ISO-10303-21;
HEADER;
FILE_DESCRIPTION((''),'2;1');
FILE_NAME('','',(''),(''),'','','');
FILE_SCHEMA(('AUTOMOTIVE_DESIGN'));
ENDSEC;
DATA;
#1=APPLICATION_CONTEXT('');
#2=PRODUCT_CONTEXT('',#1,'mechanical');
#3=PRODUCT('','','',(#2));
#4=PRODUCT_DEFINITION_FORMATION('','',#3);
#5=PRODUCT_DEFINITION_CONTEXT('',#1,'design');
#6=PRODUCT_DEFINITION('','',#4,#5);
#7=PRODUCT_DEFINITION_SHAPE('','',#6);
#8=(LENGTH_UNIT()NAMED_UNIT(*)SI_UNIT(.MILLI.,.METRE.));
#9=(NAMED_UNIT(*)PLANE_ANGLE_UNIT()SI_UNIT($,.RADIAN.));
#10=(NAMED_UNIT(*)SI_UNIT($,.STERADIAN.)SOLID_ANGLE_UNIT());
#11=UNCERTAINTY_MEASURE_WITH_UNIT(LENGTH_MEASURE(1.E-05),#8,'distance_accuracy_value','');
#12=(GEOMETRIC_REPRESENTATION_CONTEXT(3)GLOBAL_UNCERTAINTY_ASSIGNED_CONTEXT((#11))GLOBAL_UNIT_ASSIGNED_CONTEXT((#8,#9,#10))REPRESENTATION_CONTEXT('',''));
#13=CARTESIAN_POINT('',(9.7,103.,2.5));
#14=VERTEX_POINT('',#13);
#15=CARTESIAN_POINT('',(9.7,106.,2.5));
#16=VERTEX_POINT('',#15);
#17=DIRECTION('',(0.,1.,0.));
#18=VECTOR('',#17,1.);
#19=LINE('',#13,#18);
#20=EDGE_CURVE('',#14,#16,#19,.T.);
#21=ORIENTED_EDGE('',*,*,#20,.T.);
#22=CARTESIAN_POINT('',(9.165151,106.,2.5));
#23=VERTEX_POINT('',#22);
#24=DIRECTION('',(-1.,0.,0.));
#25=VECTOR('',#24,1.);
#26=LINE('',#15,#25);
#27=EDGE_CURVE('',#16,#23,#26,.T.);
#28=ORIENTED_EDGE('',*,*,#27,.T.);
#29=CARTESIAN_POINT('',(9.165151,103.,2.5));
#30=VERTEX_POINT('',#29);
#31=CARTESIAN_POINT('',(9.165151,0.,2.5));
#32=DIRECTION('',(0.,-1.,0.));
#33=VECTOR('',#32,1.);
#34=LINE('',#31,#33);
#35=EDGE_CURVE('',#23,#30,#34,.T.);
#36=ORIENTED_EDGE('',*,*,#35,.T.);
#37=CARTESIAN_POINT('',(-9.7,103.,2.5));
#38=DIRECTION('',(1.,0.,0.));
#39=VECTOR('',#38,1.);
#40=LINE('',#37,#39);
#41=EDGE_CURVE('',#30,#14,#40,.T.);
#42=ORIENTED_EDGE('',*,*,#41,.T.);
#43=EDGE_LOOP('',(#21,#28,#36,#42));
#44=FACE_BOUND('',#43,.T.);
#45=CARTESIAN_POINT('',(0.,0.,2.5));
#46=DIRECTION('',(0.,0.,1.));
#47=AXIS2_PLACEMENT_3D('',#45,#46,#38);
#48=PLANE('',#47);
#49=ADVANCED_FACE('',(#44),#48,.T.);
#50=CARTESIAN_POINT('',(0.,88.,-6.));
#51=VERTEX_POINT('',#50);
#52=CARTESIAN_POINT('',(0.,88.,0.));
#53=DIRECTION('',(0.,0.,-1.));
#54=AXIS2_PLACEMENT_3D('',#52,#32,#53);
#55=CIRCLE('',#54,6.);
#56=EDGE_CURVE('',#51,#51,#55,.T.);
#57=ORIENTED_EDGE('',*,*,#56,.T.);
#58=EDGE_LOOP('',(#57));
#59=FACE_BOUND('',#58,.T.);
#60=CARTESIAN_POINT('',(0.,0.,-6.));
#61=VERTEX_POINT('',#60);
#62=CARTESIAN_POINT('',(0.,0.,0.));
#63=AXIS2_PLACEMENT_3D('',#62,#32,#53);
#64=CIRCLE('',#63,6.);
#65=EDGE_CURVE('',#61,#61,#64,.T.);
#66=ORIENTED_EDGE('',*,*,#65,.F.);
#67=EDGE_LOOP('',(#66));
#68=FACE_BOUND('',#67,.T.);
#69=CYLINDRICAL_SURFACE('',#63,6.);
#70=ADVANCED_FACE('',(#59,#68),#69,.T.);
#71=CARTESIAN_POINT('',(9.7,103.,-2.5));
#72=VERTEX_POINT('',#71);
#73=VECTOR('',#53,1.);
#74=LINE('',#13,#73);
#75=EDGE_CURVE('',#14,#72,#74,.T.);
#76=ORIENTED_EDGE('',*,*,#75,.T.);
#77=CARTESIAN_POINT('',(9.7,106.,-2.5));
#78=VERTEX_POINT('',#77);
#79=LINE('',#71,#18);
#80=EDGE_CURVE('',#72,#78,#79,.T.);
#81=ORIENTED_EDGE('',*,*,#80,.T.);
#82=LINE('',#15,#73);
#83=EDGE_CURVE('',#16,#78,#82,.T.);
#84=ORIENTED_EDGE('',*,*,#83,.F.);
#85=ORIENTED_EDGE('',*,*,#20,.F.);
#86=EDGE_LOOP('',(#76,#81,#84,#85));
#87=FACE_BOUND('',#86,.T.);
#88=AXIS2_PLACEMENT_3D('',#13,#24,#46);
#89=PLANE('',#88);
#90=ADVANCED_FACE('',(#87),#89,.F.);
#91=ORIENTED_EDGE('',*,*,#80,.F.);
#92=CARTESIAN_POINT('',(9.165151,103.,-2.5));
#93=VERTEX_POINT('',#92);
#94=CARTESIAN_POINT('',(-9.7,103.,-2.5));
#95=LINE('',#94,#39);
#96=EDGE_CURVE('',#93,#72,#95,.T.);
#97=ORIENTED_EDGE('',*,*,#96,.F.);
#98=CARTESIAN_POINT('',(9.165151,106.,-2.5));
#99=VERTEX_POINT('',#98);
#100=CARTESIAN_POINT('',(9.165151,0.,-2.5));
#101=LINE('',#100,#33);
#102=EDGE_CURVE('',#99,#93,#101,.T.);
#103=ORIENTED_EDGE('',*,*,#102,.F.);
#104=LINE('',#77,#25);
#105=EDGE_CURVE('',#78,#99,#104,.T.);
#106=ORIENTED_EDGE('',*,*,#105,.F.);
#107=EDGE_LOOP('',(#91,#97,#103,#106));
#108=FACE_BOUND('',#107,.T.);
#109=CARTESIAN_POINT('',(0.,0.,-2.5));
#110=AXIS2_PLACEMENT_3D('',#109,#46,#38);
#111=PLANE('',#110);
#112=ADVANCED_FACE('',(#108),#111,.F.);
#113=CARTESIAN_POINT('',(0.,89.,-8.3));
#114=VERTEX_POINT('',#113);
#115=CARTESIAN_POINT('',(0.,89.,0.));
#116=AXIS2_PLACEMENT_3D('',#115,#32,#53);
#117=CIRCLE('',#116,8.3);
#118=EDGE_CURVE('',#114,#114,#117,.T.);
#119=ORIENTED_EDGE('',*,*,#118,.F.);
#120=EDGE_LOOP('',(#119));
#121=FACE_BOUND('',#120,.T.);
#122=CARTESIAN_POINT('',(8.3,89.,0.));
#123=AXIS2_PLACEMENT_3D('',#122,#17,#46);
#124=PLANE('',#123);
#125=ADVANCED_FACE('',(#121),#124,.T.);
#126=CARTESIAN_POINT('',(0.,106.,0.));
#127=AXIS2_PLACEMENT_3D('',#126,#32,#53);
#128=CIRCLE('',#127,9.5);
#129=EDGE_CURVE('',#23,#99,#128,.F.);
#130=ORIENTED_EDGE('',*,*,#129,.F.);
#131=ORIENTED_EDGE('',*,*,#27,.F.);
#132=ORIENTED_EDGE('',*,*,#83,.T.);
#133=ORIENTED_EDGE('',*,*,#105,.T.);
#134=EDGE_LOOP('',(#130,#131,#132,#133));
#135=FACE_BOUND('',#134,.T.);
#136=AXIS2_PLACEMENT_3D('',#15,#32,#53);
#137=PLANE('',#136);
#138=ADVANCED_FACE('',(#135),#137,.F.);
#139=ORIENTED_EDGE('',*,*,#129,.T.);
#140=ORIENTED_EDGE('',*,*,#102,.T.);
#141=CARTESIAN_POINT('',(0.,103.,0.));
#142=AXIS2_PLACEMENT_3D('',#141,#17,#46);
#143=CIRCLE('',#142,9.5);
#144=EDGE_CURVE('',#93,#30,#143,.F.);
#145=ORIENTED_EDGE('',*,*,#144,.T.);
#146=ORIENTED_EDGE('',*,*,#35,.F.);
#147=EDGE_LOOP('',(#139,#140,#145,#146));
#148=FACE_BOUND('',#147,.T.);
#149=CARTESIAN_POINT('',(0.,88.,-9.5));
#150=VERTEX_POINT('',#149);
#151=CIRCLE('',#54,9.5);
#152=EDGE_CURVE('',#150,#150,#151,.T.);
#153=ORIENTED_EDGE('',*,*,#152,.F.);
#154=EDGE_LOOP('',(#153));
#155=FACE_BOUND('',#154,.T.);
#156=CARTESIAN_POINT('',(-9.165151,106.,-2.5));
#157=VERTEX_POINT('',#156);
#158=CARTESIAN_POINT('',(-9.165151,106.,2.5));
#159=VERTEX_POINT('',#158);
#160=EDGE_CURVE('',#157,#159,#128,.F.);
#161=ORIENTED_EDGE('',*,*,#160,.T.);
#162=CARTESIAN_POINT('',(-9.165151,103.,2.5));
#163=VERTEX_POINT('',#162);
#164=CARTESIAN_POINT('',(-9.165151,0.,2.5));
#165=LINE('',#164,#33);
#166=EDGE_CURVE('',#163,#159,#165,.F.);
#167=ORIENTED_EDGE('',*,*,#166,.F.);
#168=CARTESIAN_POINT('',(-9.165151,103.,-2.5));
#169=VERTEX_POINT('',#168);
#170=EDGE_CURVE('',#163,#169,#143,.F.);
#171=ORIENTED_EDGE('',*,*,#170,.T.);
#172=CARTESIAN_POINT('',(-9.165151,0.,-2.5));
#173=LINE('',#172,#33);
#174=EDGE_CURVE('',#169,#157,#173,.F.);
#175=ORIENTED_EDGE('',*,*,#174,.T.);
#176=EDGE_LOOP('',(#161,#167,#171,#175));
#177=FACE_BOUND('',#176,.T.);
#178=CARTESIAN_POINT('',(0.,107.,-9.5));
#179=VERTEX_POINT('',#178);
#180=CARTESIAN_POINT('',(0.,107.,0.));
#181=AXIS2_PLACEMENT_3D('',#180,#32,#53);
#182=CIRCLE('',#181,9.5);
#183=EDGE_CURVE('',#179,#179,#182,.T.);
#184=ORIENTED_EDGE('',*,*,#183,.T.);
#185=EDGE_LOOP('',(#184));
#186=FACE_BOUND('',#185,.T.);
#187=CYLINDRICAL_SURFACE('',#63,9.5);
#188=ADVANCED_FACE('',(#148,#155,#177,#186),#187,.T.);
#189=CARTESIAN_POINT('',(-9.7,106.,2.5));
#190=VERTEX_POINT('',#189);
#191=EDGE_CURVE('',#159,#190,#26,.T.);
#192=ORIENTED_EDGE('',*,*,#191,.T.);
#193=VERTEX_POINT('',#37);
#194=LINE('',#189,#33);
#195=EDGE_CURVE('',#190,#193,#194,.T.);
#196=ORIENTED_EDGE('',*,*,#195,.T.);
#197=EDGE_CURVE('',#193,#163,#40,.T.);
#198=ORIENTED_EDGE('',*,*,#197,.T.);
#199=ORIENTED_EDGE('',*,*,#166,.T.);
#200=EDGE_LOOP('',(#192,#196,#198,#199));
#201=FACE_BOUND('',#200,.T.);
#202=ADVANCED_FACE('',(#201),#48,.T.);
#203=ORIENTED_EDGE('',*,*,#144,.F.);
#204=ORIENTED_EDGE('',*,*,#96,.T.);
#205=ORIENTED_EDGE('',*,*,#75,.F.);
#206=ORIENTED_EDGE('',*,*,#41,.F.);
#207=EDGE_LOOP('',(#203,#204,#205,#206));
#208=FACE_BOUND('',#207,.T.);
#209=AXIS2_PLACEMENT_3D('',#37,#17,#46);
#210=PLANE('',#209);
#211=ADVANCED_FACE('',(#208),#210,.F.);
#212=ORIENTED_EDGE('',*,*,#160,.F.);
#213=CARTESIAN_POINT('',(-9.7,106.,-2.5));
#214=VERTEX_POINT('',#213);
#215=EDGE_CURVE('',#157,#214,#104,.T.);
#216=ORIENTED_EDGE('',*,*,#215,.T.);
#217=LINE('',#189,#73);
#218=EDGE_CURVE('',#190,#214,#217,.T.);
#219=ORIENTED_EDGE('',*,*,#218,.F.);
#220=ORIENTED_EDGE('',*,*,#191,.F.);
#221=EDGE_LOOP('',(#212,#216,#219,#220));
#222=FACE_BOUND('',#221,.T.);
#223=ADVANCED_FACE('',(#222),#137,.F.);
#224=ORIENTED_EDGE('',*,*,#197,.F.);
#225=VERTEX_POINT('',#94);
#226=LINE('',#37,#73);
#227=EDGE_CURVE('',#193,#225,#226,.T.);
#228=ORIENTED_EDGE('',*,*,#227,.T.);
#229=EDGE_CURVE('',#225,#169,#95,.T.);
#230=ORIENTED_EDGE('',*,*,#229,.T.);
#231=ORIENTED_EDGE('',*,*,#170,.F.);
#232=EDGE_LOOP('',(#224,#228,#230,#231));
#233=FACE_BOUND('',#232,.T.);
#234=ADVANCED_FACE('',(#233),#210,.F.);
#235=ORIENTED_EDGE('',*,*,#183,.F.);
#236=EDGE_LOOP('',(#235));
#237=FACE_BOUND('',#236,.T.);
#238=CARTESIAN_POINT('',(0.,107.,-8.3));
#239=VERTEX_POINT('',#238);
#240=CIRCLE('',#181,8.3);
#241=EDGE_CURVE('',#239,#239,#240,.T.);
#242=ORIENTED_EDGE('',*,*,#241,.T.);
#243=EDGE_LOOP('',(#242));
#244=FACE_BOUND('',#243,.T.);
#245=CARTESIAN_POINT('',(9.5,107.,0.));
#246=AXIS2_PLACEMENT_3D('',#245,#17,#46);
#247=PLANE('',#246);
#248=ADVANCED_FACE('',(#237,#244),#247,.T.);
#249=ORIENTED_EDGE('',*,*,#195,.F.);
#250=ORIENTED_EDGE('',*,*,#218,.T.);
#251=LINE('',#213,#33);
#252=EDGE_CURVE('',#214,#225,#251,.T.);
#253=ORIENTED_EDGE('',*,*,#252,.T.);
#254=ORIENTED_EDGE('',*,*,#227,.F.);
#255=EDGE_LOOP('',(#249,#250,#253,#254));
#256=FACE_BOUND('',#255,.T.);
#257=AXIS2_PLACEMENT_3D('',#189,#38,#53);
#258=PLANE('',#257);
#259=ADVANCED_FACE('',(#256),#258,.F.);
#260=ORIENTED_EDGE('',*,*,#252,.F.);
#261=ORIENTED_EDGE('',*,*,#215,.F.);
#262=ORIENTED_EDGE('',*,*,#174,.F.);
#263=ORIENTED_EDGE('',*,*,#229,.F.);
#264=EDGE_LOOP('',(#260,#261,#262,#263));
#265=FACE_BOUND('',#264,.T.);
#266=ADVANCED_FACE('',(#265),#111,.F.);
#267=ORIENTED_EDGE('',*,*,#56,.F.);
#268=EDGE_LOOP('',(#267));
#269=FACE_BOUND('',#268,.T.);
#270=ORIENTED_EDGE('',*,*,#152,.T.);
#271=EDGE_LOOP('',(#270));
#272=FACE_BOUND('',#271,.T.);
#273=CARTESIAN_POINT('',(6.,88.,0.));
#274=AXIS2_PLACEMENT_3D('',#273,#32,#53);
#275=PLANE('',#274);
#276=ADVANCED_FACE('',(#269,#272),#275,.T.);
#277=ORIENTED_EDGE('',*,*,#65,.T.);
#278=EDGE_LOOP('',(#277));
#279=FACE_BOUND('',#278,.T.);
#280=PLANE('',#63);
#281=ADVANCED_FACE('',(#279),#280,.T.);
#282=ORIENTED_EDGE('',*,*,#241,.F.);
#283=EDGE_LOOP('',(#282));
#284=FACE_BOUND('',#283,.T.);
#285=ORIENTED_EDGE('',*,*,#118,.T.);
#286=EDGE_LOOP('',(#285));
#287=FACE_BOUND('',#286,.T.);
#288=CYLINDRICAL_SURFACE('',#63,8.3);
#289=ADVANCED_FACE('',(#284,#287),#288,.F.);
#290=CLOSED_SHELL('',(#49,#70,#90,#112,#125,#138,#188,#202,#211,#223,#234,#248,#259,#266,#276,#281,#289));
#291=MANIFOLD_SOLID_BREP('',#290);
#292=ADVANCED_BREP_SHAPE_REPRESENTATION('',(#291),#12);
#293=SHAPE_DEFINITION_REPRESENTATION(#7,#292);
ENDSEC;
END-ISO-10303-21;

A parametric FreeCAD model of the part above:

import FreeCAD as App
import Part
import Sketcher

V = App.Vector


def add_polygon(sketch, points):
    """Adds a closed chain of lines whose ends are joined by coincident constraints."""
    first, n = sketch.GeometryCount, len(points)
    for a, b in zip(points, points[1:] + points[:1]):
        sketch.addGeometry(Part.LineSegment(App.Vector(*a, 0), App.Vector(*b, 0)), False)
    for i in range(n):
        sketch.addConstraint(Sketcher.Constraint("Coincident", first + i, 2, first + (i + 1) % n, 1))

doc = App.newDocument("Part")
body = doc.addObject("PartDesign::Body", "Body")

# Sketch on XY plane
sketch1 = body.newObject("Sketcher::SketchObject", "Sketch")
sketch1.AttachmentSupport = (doc.getObject("XY_Plane"), [""])
sketch1.MapMode = "FlatFace"
add_polygon(sketch1, [(0, 0), (6, 0), (6, 88), (9.5, 88), (9.5, 107), (8.3, 107), (8.3, 89), (0, 89)])  # lines 0-7
sketch1.addConstraint([
    Sketcher.Constraint("Horizontal", 0),
    Sketcher.Constraint("Vertical", 1),
    Sketcher.Constraint("Horizontal", 2),
    Sketcher.Constraint("Vertical", 3),
    Sketcher.Constraint("Horizontal", 4),
    Sketcher.Constraint("Vertical", 5),
    Sketcher.Constraint("Horizontal", 6),
    Sketcher.Constraint("Vertical", 7),
    Sketcher.Constraint("Coincident", 7, 2, -1, 1),
    Sketcher.Constraint("DistanceX", 0, 1, 0, 2, 6.0),
    Sketcher.Constraint("DistanceY", 1, 1, 1, 2, 88.0),
    Sketcher.Constraint("DistanceY", 3, 1, 3, 2, 19.0),
    Sketcher.Constraint("DistanceY", 5, 2, 5, 1, 18.0),
    Sketcher.Constraint("DistanceX", 2, 1, 2, 2, 3.5),
    Sketcher.Constraint("DistanceX", 4, 2, 4, 1, 1.2),
])
revolution = body.newObject("PartDesign::Revolution", "Revolution")
revolution.Profile = sketch1
revolution.ReferenceAxis = (sketch1, ["V_Axis"])
revolution.Angle = 360

# Sketch on XY plane
sketch2 = body.newObject("Sketcher::SketchObject", "Sketch001")
sketch2.AttachmentSupport = (doc.getObject("XY_Plane"), [""])
sketch2.MapMode = "FlatFace"
sketch2.AttachmentOffset = App.Placement(V(0, 0, -2.5), App.Rotation())
add_polygon(sketch2, [(-9.7, 106), (-9.7, 103), (9.7, 103), (9.7, 106)])  # lines 0-3
sketch2.addConstraint([
    Sketcher.Constraint("Vertical", 0),
    Sketcher.Constraint("Horizontal", 1),
    Sketcher.Constraint("Vertical", 2),
    Sketcher.Constraint("Horizontal", 3),
    Sketcher.Constraint("DistanceY", 0, 2, 0, 1, 3.0),
    Sketcher.Constraint("DistanceX", 1, 1, 1, 2, 19.4),
    Sketcher.Constraint("DistanceY", -1, 1, 0, 2, 103.0),
    Sketcher.Constraint("DistanceX", 0, 2, -1, 1, 9.7),
])
pad1 = body.newObject("PartDesign::Pad", "Pad")
pad1.Profile = sketch2
pad1.Length = 5

# Sketch on XZ plane
sketch3 = body.newObject("Sketcher::SketchObject", "Sketch002")
sketch3.AttachmentSupport = (doc.getObject("XZ_Plane"), [""])
sketch3.MapMode = "FlatFace"
sketch3.AttachmentOffset = App.Placement(V(0, 0, -89), App.Rotation())
sketch3.addGeometry(Part.Circle(V(0, 0, 0), V(0, 0, 1), 8), False)
sketch3.addConstraint([
    Sketcher.Constraint("Coincident", 0, 3, -1, 1),
    Sketcher.Constraint("Diameter", 0, 16.6),
])
pocket1 = body.newObject("PartDesign::Pocket", "Pocket")
pocket1.Profile = sketch3
pocket1.Length = 18

doc.recompute()
